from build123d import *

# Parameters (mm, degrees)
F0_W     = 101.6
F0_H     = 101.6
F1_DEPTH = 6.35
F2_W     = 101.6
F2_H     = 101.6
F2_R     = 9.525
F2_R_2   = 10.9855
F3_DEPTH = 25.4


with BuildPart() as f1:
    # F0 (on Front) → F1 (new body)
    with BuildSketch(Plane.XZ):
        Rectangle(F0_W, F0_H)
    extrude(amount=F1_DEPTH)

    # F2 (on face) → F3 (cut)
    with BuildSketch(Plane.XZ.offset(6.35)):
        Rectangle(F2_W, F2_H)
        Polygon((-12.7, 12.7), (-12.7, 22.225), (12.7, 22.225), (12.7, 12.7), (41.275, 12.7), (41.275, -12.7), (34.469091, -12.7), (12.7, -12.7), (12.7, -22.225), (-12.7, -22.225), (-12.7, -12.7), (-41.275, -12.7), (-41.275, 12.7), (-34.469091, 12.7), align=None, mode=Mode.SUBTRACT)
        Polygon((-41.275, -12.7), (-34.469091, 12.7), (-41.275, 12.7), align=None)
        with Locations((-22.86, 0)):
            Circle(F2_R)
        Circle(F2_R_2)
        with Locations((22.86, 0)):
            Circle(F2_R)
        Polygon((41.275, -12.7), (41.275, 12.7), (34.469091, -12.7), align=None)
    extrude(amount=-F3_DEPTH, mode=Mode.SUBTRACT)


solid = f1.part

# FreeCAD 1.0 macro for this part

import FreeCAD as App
import Part
import Sketcher

V = App.Vector
Q = App.Units.Quantity

doc = App.newDocument("Part")
params = doc.addObject("Spreadsheet::Sheet", "Params")
for row, (alias, value) in enumerate([
    ("sketch1_width", "4 in"),
    ("pad1_length", "0.25 in"),
    ("sketch2_diameter", "0.75 in"),
    ("sketch2_width", "4 in"),
    ("sketch2_width2", "1 in"),
    ("sketch2_diameter2", "0.865 in"),
    ("sketch2_width3", "1.125 in"),
    ("pocket1_length", "1 in"),
], start=1):
    params.set(f"A{row}", alias)
    params.set(f"B{row}", "=" + value)
    params.setAlias(f"B{row}", alias)

body = doc.addObject("PartDesign::Body", "Body")

sketch1 = body.newObject("Sketcher::SketchObject", "Sketch")
sketch1.AttachmentSupport = (doc.getObject("XZ_Plane"), [""])
sketch1.MapMode = "FlatFace"
sketch1.addGeometry([
    Part.LineSegment(V(-51, 51, 0), V(-51, -51, 0)),
    Part.LineSegment(V(-51, -51, 0), V(51, -51, 0)),
    Part.LineSegment(V(51, -51, 0), V(51, 51, 0)),
    Part.LineSegment(V(51, 51, 0), V(-51, 51, 0)),
], False)
sketch1.addConstraint([
    Sketcher.Constraint("Coincident", 0, 2, 1, 1),
    Sketcher.Constraint("Coincident", 1, 2, 2, 1),
    Sketcher.Constraint("Coincident", 2, 2, 3, 1),
    Sketcher.Constraint("Coincident", 3, 2, 0, 1),
    Sketcher.Constraint("Vertical", 0),
    Sketcher.Constraint("Horizontal", 1),
    Sketcher.Constraint("Vertical", 2),
    Sketcher.Constraint("Horizontal", 3),
    Sketcher.Constraint("Symmetric", 0, 2, 2, 2, -1, 1),
    Sketcher.Constraint("Equal", 3, 0),
    Sketcher.Constraint("DistanceX", 1, 1, 1, 2, Q("4 in")),
])
sketch1.setExpression("Constraints[10]", "Params.sketch1_width")
pad1 = body.newObject("PartDesign::Pad", "Pad")
pad1.Profile = sketch1
pad1.setExpression("Length", "Params.pad1_length")

sketch2 = body.newObject("Sketcher::SketchObject", "Sketch001")
sketch2.AttachmentSupport = (doc.getObject("XZ_Plane"), [""])
sketch2.MapMode = "FlatFace"
sketch2.AttachmentOffset = App.Placement(V(0, 0, 0.25 * 25.4), App.Rotation())
sketch2.addGeometry([
    Part.LineSegment(V(-51, 51, 0), V(-51, -51, 0)),
    Part.LineSegment(V(-51, -51, 0), V(51, -51, 0)),
    Part.LineSegment(V(51, -51, 0), V(51, 51, 0)),
    Part.LineSegment(V(51, 51, 0), V(-51, 51, 0)),
    Part.LineSegment(V(-34, 13, 0), V(-13, 13, 0)),
    Part.LineSegment(V(-13, 13, 0), V(-13, 22, 0)),
    Part.LineSegment(V(-13, 22, 0), V(13, 22, 0)),
    Part.LineSegment(V(13, 22, 0), V(13, 13, 0)),
    Part.LineSegment(V(13, 13, 0), V(41, 13, 0)),
    Part.LineSegment(V(41, 13, 0), V(34, -13, 0)),
    Part.LineSegment(V(34, -13, 0), V(13, -13, 0)),
    Part.LineSegment(V(13, -13, 0), V(13, -22, 0)),
    Part.LineSegment(V(13, -22, 0), V(-13, -22, 0)),
    Part.LineSegment(V(-13, -22, 0), V(-13, -13, 0)),
    Part.LineSegment(V(-13, -13, 0), V(-41, -13, 0)),
    Part.LineSegment(V(-41, -13, 0), V(-34, 13, 0)),
    Part.Circle(V(-23, 0, 0), V(0, 0, 1), 10),
    Part.Circle(V(0, 0, 0), V(0, 0, 1), 11),
    Part.Circle(V(23, 0, 0), V(0, 0, 1), 10),
], False)
sketch2.addConstraint([
    Sketcher.Constraint("Coincident", 0, 2, 1, 1),
    Sketcher.Constraint("Coincident", 1, 2, 2, 1),
    Sketcher.Constraint("Coincident", 2, 2, 3, 1),
    Sketcher.Constraint("Coincident", 3, 2, 0, 1),
    Sketcher.Constraint("Coincident", 4, 2, 5, 1),
    Sketcher.Constraint("Coincident", 5, 2, 6, 1),
    Sketcher.Constraint("Coincident", 6, 2, 7, 1),
    Sketcher.Constraint("Coincident", 7, 2, 8, 1),
    Sketcher.Constraint("Coincident", 8, 2, 9, 1),
    Sketcher.Constraint("Coincident", 9, 2, 10, 1),
    Sketcher.Constraint("Coincident", 10, 2, 11, 1),
    Sketcher.Constraint("Coincident", 11, 2, 12, 1),
    Sketcher.Constraint("Coincident", 12, 2, 13, 1),
    Sketcher.Constraint("Coincident", 13, 2, 14, 1),
    Sketcher.Constraint("Coincident", 14, 2, 15, 1),
    Sketcher.Constraint("Coincident", 15, 2, 4, 1),
    Sketcher.Constraint("Vertical", 0),
    Sketcher.Constraint("Horizontal", 1),
    Sketcher.Constraint("Vertical", 2),
    Sketcher.Constraint("Horizontal", 3),
    Sketcher.Constraint("Horizontal", 4),
    Sketcher.Constraint("Vertical", 5),
    Sketcher.Constraint("Horizontal", 6),
    Sketcher.Constraint("Vertical", 7),
    Sketcher.Constraint("Horizontal", 8),
    Sketcher.Constraint("Horizontal", 10),
    Sketcher.Constraint("Vertical", 11),
    Sketcher.Constraint("Horizontal", 12),
    Sketcher.Constraint("Vertical", 13),
    Sketcher.Constraint("Horizontal", 14),
    Sketcher.Constraint("Coincident", 17, 3, -1, 1),
    Sketcher.Constraint("Equal", 16, 18),
    Sketcher.Constraint("Symmetric", 16, 3, 18, 3, -1, 1),
    Sketcher.Constraint("Symmetric", 0, 2, 2, 2, -1, 1),
    Sketcher.Constraint("Symmetric", 4, 2, 10, 2, -1, 1),
    Sketcher.Constraint("Symmetric", 6, 2, 12, 2, -1, 1),
    Sketcher.Constraint("Symmetric", 8, 2, 14, 2, -1, 1),
    Sketcher.Constraint("Symmetric", 4, 2, 7, 2, -2),
    Sketcher.Constraint("PointOnObject", 16, 3, -1),
    Sketcher.Constraint("Parallel", 9, 15),
    Sketcher.Constraint("Equal", 3, 0),
    Sketcher.Constraint("Diameter", 16, Q("0.75 in")),
    Sketcher.Constraint("DistanceX", 1, 1, 1, 2, Q("4 in")),
    Sketcher.Constraint("DistanceX", 6, 1, 6, 2, Q("1 in")),
    Sketcher.Constraint("Diameter", 17, Q("0.865 in")),
    Sketcher.Constraint("Angle", 9, Q("-104.999999 deg")),
    Sketcher.Constraint("DistanceY", 9, 2, 8, 2, Q("1 in")),
    Sketcher.Constraint("DistanceX", 16, 3, -1, 1, Q("0.9 in")),
    Sketcher.Constraint("DistanceX", 8, 1, 8, 2, Q("1.125 in")),
    Sketcher.Constraint("DistanceY", 5, 1, 5, 2, Q("0.375 in")),
])
sketch2.setExpression("Constraints[41]", "Params.sketch2_diameter")
sketch2.setExpression("Constraints[42]", "Params.sketch2_width")
sketch2.setExpression("Constraints[43]", "Params.sketch2_width2")
sketch2.setExpression("Constraints[44]", "Params.sketch2_diameter2")
sketch2.setExpression("Constraints[48]", "Params.sketch2_width3")
pocket1 = body.newObject("PartDesign::Pocket", "Pocket")
pocket1.Profile = sketch2
pocket1.setExpression("Length", "Params.pocket1_length")

doc.recompute()
